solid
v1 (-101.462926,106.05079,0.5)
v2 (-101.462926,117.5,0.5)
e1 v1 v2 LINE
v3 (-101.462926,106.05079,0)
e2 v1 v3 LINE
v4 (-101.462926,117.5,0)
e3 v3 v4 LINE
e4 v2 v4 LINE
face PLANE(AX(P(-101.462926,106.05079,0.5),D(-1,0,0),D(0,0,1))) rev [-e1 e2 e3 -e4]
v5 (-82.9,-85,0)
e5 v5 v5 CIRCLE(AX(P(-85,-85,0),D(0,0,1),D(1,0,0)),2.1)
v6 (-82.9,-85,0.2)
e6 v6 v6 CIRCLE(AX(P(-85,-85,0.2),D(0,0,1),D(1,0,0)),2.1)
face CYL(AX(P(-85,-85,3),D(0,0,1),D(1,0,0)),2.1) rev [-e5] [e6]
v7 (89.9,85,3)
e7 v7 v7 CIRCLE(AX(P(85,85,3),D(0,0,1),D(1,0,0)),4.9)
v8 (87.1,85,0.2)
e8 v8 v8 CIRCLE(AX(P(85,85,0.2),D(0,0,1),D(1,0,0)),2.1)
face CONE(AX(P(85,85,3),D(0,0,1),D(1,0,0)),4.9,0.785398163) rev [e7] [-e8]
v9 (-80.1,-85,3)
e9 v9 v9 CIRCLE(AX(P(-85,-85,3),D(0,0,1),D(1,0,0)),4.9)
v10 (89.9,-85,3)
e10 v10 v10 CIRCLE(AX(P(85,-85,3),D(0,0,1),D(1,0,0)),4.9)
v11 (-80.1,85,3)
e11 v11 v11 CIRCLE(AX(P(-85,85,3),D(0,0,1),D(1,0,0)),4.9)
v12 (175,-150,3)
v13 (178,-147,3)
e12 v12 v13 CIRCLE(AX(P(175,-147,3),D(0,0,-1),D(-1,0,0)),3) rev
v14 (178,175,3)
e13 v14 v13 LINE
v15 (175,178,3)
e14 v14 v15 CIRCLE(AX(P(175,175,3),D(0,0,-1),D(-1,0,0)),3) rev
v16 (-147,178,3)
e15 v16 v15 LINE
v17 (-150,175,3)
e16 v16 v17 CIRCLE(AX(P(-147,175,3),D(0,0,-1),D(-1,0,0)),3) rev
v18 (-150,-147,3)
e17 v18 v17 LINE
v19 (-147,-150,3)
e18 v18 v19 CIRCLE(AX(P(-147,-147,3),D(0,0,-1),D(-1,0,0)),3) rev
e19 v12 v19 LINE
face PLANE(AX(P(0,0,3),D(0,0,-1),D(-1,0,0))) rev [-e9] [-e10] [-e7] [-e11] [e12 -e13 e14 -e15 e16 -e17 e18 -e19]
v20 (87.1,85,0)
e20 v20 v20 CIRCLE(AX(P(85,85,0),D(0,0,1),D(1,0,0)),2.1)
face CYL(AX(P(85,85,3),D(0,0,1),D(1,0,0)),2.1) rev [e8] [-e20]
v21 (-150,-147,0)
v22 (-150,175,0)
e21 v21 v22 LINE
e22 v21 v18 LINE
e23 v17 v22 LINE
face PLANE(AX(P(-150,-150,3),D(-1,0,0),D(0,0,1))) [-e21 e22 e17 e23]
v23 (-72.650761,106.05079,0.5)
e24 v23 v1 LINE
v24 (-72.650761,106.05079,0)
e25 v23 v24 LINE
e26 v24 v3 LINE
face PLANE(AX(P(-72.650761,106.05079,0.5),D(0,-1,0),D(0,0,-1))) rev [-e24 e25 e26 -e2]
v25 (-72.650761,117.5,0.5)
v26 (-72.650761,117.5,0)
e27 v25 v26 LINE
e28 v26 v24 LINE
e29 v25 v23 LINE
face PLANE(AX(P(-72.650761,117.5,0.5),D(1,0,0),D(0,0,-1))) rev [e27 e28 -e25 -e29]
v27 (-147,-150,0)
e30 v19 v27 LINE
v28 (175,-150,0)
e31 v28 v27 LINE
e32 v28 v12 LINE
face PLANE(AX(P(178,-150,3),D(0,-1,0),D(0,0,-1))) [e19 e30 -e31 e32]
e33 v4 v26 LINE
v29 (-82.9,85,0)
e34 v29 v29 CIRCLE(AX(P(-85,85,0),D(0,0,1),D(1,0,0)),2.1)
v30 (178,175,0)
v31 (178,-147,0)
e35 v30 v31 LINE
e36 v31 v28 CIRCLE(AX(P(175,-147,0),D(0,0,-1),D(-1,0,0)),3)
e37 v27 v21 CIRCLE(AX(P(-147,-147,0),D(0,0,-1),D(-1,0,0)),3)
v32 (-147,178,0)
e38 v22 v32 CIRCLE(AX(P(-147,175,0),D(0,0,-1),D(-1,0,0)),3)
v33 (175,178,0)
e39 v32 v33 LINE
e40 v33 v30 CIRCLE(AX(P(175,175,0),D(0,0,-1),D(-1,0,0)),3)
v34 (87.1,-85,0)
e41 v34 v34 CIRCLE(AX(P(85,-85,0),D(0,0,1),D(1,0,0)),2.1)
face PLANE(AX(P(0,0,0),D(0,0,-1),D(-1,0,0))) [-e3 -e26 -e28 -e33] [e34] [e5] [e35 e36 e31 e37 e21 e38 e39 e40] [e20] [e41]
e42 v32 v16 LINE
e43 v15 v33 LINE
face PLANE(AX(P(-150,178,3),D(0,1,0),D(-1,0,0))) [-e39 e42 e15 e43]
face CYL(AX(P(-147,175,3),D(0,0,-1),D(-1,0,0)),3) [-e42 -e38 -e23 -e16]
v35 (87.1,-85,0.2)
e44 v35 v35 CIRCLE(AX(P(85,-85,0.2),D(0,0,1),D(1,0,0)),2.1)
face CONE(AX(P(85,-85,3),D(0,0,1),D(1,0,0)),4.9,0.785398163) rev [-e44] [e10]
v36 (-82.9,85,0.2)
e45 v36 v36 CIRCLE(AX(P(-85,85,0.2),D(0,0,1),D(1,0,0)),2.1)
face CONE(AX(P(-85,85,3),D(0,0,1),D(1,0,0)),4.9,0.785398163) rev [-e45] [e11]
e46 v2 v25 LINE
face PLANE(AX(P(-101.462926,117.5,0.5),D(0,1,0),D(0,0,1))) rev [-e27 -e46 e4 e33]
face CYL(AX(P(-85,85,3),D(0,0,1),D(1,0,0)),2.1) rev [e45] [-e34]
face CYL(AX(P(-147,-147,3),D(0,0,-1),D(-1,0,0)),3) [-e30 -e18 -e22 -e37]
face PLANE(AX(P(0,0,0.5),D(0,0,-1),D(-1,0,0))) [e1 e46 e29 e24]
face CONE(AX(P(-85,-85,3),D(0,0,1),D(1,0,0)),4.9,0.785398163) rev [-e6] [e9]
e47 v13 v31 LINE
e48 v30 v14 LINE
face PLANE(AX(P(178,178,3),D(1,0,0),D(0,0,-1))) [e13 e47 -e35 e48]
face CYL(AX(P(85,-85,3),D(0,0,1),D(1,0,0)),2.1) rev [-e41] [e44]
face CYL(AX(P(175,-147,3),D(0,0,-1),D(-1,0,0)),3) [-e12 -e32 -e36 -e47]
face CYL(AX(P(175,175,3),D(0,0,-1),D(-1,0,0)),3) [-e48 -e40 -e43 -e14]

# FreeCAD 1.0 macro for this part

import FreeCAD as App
import Part
import Sketcher
from FreeCAD import Vector
Q = App.Units.Quantity


def edges_at(feature, points):
    """Names of the edges that pass closest to the given points."""
    edges = feature.Shape.Edges
    near = lambda p: min(range(len(edges)), key=lambda i: edges[i].distToShape(Part.Vertex(*p))[0])
    return sorted({f"Edge{near(p) + 1}" for p in points})

doc = App.newDocument("Part")
params = doc.addObject("Spreadsheet::Sheet", "Params")
for row, (alias, value) in enumerate([
    ("sketch1_width", "328 mm"),
    ("pad1_length", "3 mm"),
    ("pocket1_length", "0.5 mm"),
    ("sketch3_height", "3 mm"),
    ("sketch3_width", "4.9 mm"),
    ("sketch3_width2", "2.1 mm"),
    ("groove_angle", "360 deg"),
    ("linearpattern_pitch", "170 mm"),
    ("linearpattern2_pitch", "240.416306 mm"),
    ("linearpattern3_pitch", "170 mm"),
    ("fillet_radius", "3 mm"),
], start=1):
    params.set(f"A{row}", alias)
    params.set(f"B{row}", "=" + value)
    params.setAlias(f"B{row}", alias)

body = doc.addObject("PartDesign::Body", "Body")

sketch1 = doc.addObject("Sketcher::SketchObject", "Sketch")
body.addObject(sketch1)
sketch1.AttachmentSupport = (doc.XY_Plane, [""])
sketch1.MapMode = "FlatFace"
sketch1.addGeometry(Part.LineSegment(Vector(178, 178, 0), Vector(178, -150, 0)), False)
sketch1.addGeometry(Part.LineSegment(Vector(178, -150, 0), Vector(-150, -150, 0)), False)
sketch1.addGeometry(Part.LineSegment(Vector(-150, -150, 0), Vector(-150, 178, 0)), False)
sketch1.addGeometry(Part.LineSegment(Vector(-150, 178, 0), Vector(178, 178, 0)), False)
sketch1.addConstraint(Sketcher.Constraint("Coincident", 0, 2, 1, 1))
sketch1.addConstraint(Sketcher.Constraint("Coincident", 1, 2, 2, 1))
sketch1.addConstraint(Sketcher.Constraint("Coincident", 2, 2, 3, 1))
sketch1.addConstraint(Sketcher.Constraint("Coincident", 3, 2, 0, 1))
sketch1.addConstraint(Sketcher.Constraint("Vertical", 0))
sketch1.addConstraint(Sketcher.Constraint("Horizontal", 1))
sketch1.addConstraint(Sketcher.Constraint("Vertical", 2))
sketch1.addConstraint(Sketcher.Constraint("Horizontal", 3))
sketch1.addConstraint(Sketcher.Constraint("Equal", 3, 0))
sketch1.addConstraint(Sketcher.Constraint("DistanceX", 1, 2, 1, 1, 328.0))
sketch1.addConstraint(Sketcher.Constraint("DistanceX", -1, 1, 0, 2, 178.0))
sketch1.addConstraint(Sketcher.Constraint("DistanceY", 0, 2, -1, 1, 150.0))
sketch1.setExpression("Constraints[9]", "Params.sketch1_width")
pad1 = doc.addObject("PartDesign::Pad", "Pad")
body.addObject(pad1)
pad1.Profile = sketch1
pad1.setExpression("Length", "Params.pad1_length")

sketch2 = doc.addObject("Sketcher::SketchObject", "Sketch001")
body.addObject(sketch2)
sketch2.AttachmentSupport = (doc.XY_Plane, [""])
sketch2.MapMode = "FlatFace"
sketch2.addGeometry(Part.LineSegment(Vector(-73, 118, 0), Vector(-73, 106, 0)), False)
sketch2.addGeometry(Part.LineSegment(Vector(-73, 106, 0), Vector(-101, 106, 0)), False)
sketch2.addGeometry(Part.LineSegment(Vector(-101, 106, 0), Vector(-101, 118, 0)), False)
sketch2.addGeometry(Part.LineSegment(Vector(-101, 118, 0), Vector(-73, 118, 0)), False)
sketch2.addConstraint(Sketcher.Constraint("Coincident", 0, 2, 1, 1))
sketch2.addConstraint(Sketcher.Constraint("Coincident", 1, 2, 2, 1))
sketch2.addConstraint(Sketcher.Constraint("Coincident", 2, 2, 3, 1))
sketch2.addConstraint(Sketcher.Constraint("Coincident", 3, 2, 0, 1))
sketch2.addConstraint(Sketcher.Constraint("Vertical", 0))
sketch2.addConstraint(Sketcher.Constraint("Horizontal", 1))
sketch2.addConstraint(Sketcher.Constraint("Vertical", 2))
sketch2.addConstraint(Sketcher.Constraint("Horizontal", 3))
sketch2.addConstraint(Sketcher.Constraint("DistanceY", -1, 1, 2, 2, 117.5))
sketch2.addConstraint(Sketcher.Constraint("DistanceY", 0, 2, 0, 1, 11.44921))
sketch2.addConstraint(Sketcher.Constraint("DistanceX", 1, 2, 1, 1, 28.812164))
sketch2.addConstraint(Sketcher.Constraint("DistanceX", 0, 2, -1, 1, 72.650761))
pocket1 = doc.addObject("PartDesign::Pocket", "Pocket")
body.addObject(pocket1)
pocket1.Profile = sketch2
pocket1.setExpression("Length", "Params.pocket1_length")
pocket1.Reversed = True

sketch3 = doc.addObject("Sketcher::SketchObject", "Sketch002")
body.addObject(sketch3)
sketch3.AttachmentSupport = (doc.YZ_Plane, [""])
sketch3.MapMode = "FlatFace"
sketch3.AttachmentOffset = App.Placement(Vector(0, 0, -85), App.Rotation())
sketch3.addGeometry(Part.LineSegment(Vector(-85, 0, 0), Vector(-85, 3, 0)), False)
sketch3.addGeometry(Part.LineSegment(Vector(-85, 3, 0), Vector(-89.9, 3, 0)), False)
sketch3.addGeometry(Part.LineSegment(Vector(-89.9, 3, 0), Vector(-87.1, 0.2, 0)), False)
sketch3.addGeometry(Part.LineSegment(Vector(-87.1, 0.2, 0), Vector(-87.1, 0, 0)), False)
sketch3.addGeometry(Part.LineSegment(Vector(-87.1, 0, 0), Vector(-85, 0, 0)), False)
sketch3.addGeometry(Part.LineSegment(Vector(-85, 3, 0), Vector(-85, 0, 0)), True)
sketch3.addConstraint(Sketcher.Constraint("Coincident", 0, 2, 1, 1))
sketch3.addConstraint(Sketcher.Constraint("Coincident", 1, 2, 2, 1))
sketch3.addConstraint(Sketcher.Constraint("Coincident", 2, 2, 3, 1))
sketch3.addConstraint(Sketcher.Constraint("Coincident", 3, 2, 4, 1))
sketch3.addConstraint(Sketcher.Constraint("Coincident", 4, 2, 0, 1))
sketch3.addConstraint(Sketcher.Constraint("Vertical", 0))
sketch3.addConstraint(Sketcher.Constraint("Horizontal", 1))
sketch3.addConstraint(Sketcher.Constraint("Vertical", 3))
sketch3.addConstraint(Sketcher.Constraint("Horizontal", 4))
sketch3.addConstraint(Sketcher.Constraint("Vertical", 5))
sketch3.addConstraint(Sketcher.Constraint("Coincident", 5, 1, 0, 2))
sketch3.addConstraint(Sketcher.Constraint("PointOnObject", 3, 2, -1))
sketch3.addConstraint(Sketcher.Constraint("PointOnObject", 5, 2, -1))
sketch3.addConstraint(Sketcher.Constraint("DistanceY", 0, 1, 0, 2, 3.0))
sketch3.addConstraint(Sketcher.Constraint("Angle", 2, Q("-45 deg")))
sketch3.addConstraint(Sketcher.Constraint("DistanceX", 1, 2, 1, 1, 4.9))
sketch3.addConstraint(Sketcher.Constraint("DistanceX", 4, 1, 4, 2, 2.1))
sketch3.addConstraint(Sketcher.Constraint("DistanceX", 0, 2, -1, 1, 85.0))
sketch3.setExpression("Constraints[13]", "Params.sketch3_height")
sketch3.setExpression("Constraints[15]", "Params.sketch3_width")
sketch3.setExpression("Constraints[16]", "Params.sketch3_width2")
groove = doc.addObject("PartDesign::Groove", "Groove")
body.addObject(groove)
groove.Profile = sketch3
groove.ReferenceAxis = (sketch3, ["Axis0"])
groove.setExpression("Angle", "Params.groove_angle")
doc.recompute()

linearpattern = doc.addObject("PartDesign::LinearPattern", "LinearPattern")
body.addObject(linearpattern)
linearpattern.Originals = [groove]
linearpattern.Direction = (doc.X_Axis, [""])
linearpattern.Mode = "offset"
linearpattern.setExpression("Offset", "Params.linearpattern_pitch")
linearpattern.Occurrences = 2
body.Tip = linearpattern
doc.recompute()

datumline = doc.addObject("PartDesign::Line", "DatumLine")
body.addObject(datumline)
datumline.Placement = App.Placement(Vector(0, 0, 0), App.Rotation(Vector(0, 0, 1), Vector(0.707106781, 0.707106781, 0)))
linearpattern2 = doc.addObject("PartDesign::LinearPattern", "LinearPattern001")
body.addObject(linearpattern2)
linearpattern2.Originals = [groove]
linearpattern2.Direction = (datumline, [""])
linearpattern2.Mode = "offset"
linearpattern2.setExpression("Offset", "Params.linearpattern2_pitch")
linearpattern2.Occurrences = 2
body.Tip = linearpattern2
doc.recompute()

linearpattern3 = doc.addObject("PartDesign::LinearPattern", "LinearPattern002")
body.addObject(linearpattern3)
linearpattern3.Originals = [groove]
linearpattern3.Direction = (doc.Y_Axis, [""])
linearpattern3.Mode = "offset"
linearpattern3.setExpression("Offset", "Params.linearpattern3_pitch")
linearpattern3.Occurrences = 2
body.Tip = linearpattern3
doc.recompute()

fillet = doc.addObject("PartDesign::Fillet", "Fillet")
body.addObject(fillet)
fillet.Base = (linearpattern3, edges_at(linearpattern3, [
    (178, -150, 1.5),
    (178, 178, 1.5),
    (-150, 178, 1.5),
    (-150, -150, 1.5),
]))
fillet.setExpression("Radius", "Params.fillet_radius")

doc.recompute()
